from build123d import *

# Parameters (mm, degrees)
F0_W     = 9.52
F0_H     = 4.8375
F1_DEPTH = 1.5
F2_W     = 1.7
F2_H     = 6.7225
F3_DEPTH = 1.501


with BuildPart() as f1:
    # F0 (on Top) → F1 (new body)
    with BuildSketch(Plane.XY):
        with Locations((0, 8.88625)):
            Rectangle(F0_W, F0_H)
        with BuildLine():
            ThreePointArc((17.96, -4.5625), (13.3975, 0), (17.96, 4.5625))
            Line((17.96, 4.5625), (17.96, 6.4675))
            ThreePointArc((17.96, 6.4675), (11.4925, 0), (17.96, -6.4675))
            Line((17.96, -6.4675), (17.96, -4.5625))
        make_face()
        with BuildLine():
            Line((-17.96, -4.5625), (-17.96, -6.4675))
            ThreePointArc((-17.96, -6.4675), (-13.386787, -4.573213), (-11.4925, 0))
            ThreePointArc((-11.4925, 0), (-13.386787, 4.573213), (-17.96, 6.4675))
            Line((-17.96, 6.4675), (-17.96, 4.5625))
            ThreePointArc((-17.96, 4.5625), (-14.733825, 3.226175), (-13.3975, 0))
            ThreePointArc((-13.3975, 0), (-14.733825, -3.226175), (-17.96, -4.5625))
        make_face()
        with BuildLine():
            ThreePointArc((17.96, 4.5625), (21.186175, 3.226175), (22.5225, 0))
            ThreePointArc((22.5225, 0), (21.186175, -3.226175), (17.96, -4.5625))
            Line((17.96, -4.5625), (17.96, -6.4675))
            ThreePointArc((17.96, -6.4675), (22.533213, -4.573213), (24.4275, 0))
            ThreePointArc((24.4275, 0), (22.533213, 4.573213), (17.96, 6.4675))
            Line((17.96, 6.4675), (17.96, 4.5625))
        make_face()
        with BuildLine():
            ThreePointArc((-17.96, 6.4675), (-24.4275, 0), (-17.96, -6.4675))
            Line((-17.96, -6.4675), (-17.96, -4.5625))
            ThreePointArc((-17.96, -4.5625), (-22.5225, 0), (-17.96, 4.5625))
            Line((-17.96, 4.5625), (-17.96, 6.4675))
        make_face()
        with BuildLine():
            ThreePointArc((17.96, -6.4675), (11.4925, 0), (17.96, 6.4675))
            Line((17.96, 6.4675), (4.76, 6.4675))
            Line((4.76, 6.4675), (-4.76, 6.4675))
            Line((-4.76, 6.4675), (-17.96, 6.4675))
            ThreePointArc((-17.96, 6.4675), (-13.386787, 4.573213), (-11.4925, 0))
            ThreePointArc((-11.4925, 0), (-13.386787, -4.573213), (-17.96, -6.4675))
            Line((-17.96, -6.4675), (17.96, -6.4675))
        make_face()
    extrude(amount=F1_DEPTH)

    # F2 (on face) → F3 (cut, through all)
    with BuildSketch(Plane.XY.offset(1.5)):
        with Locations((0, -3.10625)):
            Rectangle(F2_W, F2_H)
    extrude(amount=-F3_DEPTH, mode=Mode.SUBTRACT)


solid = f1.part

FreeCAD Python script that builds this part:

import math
import FreeCAD as App
import Part
import Sketcher
Q = App.Units.Quantity


def add_polygon(sketch, points):
    """Adds a closed chain of lines whose ends are joined by coincident constraints."""
    first, n = sketch.GeometryCount, len(points)
    for a, b in zip(points, points[1:] + points[:1]):
        sketch.addGeometry(Part.LineSegment(App.Vector(*a, 0), App.Vector(*b, 0)), False)
    for i in range(n):
        sketch.addConstraint(Sketcher.Constraint("Coincident", first + i, 2, first + (i + 1) % n, 1))

doc = App.newDocument("Part")
body = doc.addObject("PartDesign::Body", "Body")

# Sketch on XY plane
sketch1 = doc.addObject("Sketcher::SketchObject", "Sketch")
body.addObject(sketch1)
sketch1.AttachmentSupport = (doc.XY_Plane, [""])
sketch1.MapMode = "FlatFace"
sketch1.addGeometry(Part.LineSegment(App.Vector(-4.76, 11.305, 0), App.Vector(-4.76, 6.4675, 0)), False)
sketch1.addGeometry(Part.LineSegment(App.Vector(-4.76, 6.4675, 0), App.Vector(-17.96, 6.4675, 0)), False)
sketch1.addGeometry(Part.ArcOfCircle(Part.Circle(App.Vector(-17.96, 0, 0), App.Vector(0, 0, 1), 6.4675), math.radians(90), math.radians(270)), False)
sketch1.addGeometry(Part.LineSegment(App.Vector(-17.96, -6.4675, 0), App.Vector(17.96, -6.4675, 0)), False)
sketch1.addGeometry(Part.ArcOfCircle(Part.Circle(App.Vector(17.96, 0, 0), App.Vector(0, 0, 1), 6.4675), math.radians(-89.999997), math.radians(-0.000003)), False)
sketch1.addGeometry(Part.ArcOfCircle(Part.Circle(App.Vector(17.96, 0, 0), App.Vector(0, 0, 1), 6.4675), math.radians(0.000003), math.radians(89.999997)), False)
sketch1.addGeometry(Part.LineSegment(App.Vector(17.96, 6.4675, 0), App.Vector(4.76, 6.4675, 0)), False)
sketch1.addGeometry(Part.LineSegment(App.Vector(4.76, 6.4675, 0), App.Vector(4.76, 11.305, 0)), False)
sketch1.addGeometry(Part.LineSegment(App.Vector(4.76, 11.305, 0), App.Vector(-4.76, 11.305, 0)), False)
sketch1.addGeometry(Part.ArcOfCircle(Part.Circle(App.Vector(17.96, 0, 0), App.Vector(0, 0, 1), 4.5625), math.radians(90), math.radians(270)), False)
sketch1.addGeometry(Part.ArcOfCircle(Part.Circle(App.Vector(17.960001, 0.000001, 0), App.Vector(0, 0, 1), 4.562499), math.radians(-0.000013), math.radians(90.000013)), False)
sketch1.addGeometry(Part.ArcOfCircle(Part.Circle(App.Vector(17.960001, -0.000001, 0), App.Vector(0, 0, 1), 4.562499), math.radians(-90.000013), math.radians(0.000013)), False)
sketch1.addGeometry(Part.ArcOfCircle(Part.Circle(App.Vector(-17.959999, -0.000001, 0), App.Vector(0, 0, 1), 4.562499), math.radians(-90.000013), math.radians(0.000013)), False)
sketch1.addGeometry(Part.ArcOfCircle(Part.Circle(App.Vector(-17.96, 0, 0), App.Vector(0, 0, 1), 4.5625), math.radians(90), math.radians(270)), False)
sketch1.addGeometry(Part.ArcOfCircle(Part.Circle(App.Vector(-17.959999, 0.000001, 0), App.Vector(0, 0, 1), 4.562499), math.radians(-0.000013), math.radians(90.000013)), False)
sketch1.addConstraint(Sketcher.Constraint("Coincident", 0, 2, 1, 1))
sketch1.addConstraint(Sketcher.Constraint("Tangent", 1, 2, 2, 1))
sketch1.addConstraint(Sketcher.Constraint("Tangent", 2, 2, 3, 1))
sketch1.addConstraint(Sketcher.Constraint("Tangent", 3, 2, 4, 1))
sketch1.addConstraint(Sketcher.Constraint("Tangent", 4, 2, 5, 1))
sketch1.addConstraint(Sketcher.Constraint("Tangent", 5, 2, 6, 1))
sketch1.addConstraint(Sketcher.Constraint("Coincident", 6, 2, 7, 1))
sketch1.addConstraint(Sketcher.Constraint("Coincident", 7, 2, 8, 1))
sketch1.addConstraint(Sketcher.Constraint("Coincident", 8, 2, 0, 1))
sketch1.addConstraint(Sketcher.Constraint("Tangent", 9, 1, 10, 2))
sketch1.addConstraint(Sketcher.Constraint("Tangent", 10, 1, 11, 2))
sketch1.addConstraint(Sketcher.Constraint("Tangent", 11, 1, 9, 2))
sketch1.addConstraint(Sketcher.Constraint("Tangent", 12, 1, 13, 2))
sketch1.addConstraint(Sketcher.Constraint("Tangent", 13, 1, 14, 2))
sketch1.addConstraint(Sketcher.Constraint("Tangent", 14, 1, 12, 2))
sketch1.addConstraint(Sketcher.Constraint("Vertical", 0))
sketch1.addConstraint(Sketcher.Constraint("Horizontal", 1))
sketch1.addConstraint(Sketcher.Constraint("Horizontal", 3))
sketch1.addConstraint(Sketcher.Constraint("Horizontal", 6))
sketch1.addConstraint(Sketcher.Constraint("Vertical", 7))
sketch1.addConstraint(Sketcher.Constraint("Horizontal", 8))
sketch1.addConstraint(Sketcher.Constraint("Coincident", 9, 3, 4, 3))
sketch1.addConstraint(Sketcher.Constraint("Coincident", 12, 3, 2, 3))
sketch1.addConstraint(Sketcher.Constraint("Equal", 2, 4))
sketch1.addConstraint(Sketcher.Constraint("Equal", 4, 5))
sketch1.addConstraint(Sketcher.Constraint("Equal", 11, 12))
sketch1.addConstraint(Sketcher.Constraint("Symmetric", 2, 3, 4, 3, -1, 1))
sketch1.addConstraint(Sketcher.Constraint("PointOnObject", 4, 2, -1))
sketch1.addConstraint(Sketcher.Constraint("PointOnObject", 10, 1, -1))
sketch1.addConstraint(Sketcher.Constraint("PointOnObject", 14, 1, -1))
sketch1.addConstraint(Sketcher.Constraint("Vertical", 5, 2, 9, 1))
sketch1.addConstraint(Sketcher.Constraint("Vertical", 9, 1, 11, 1))
sketch1.addConstraint(Sketcher.Constraint("Vertical", 2, 2, 12, 1))
sketch1.addConstraint(Sketcher.Constraint("Vertical", 12, 1, 13, 1))
sketch1.addConstraint(Sketcher.Constraint("Equal", 1, 6))
sketch1.addConstraint(Sketcher.Constraint("DistanceX", 1, 2, 1, 1, Q("13.2 mm")))
sketch1.addConstraint(Sketcher.Constraint("DistanceX", 3, 1, 3, 2, Q("35.92 mm")))
sketch1.addConstraint(Sketcher.Constraint("Radius", 2, Q("6.4675 mm")))
sketch1.addConstraint(Sketcher.Constraint("Radius", 9, Q("4.5625 mm")))
sketch1.addConstraint(Sketcher.Constraint("DistanceY", 0, 2, 0, 1, Q("4.8375 mm")))
pad1 = doc.addObject("PartDesign::Pad", "Pad")
body.addObject(pad1)
pad1.Profile = sketch1
pad1.Length = 1.5

# Sketch on XY plane
sketch2 = doc.addObject("Sketcher::SketchObject", "Sketch001")
body.addObject(sketch2)
sketch2.AttachmentSupport = (doc.XY_Plane, [""])
sketch2.MapMode = "FlatFace"
sketch2.AttachmentOffset = App.Placement(App.Vector(0, 0, 1.5), App.Rotation())
add_polygon(sketch2, [(-0.85, 0.255), (-0.85, -6.4675), (0.85, -6.4675), (0.85, 0.255)])  # lines 0-3
sketch2.addConstraint(Sketcher.Constraint("Vertical", 0))
sketch2.addConstraint(Sketcher.Constraint("Horizontal", 1))
sketch2.addConstraint(Sketcher.Constraint("Vertical", 2))
sketch2.addConstraint(Sketcher.Constraint("Horizontal", 3))
sketch2.addConstraint(Sketcher.Constraint("DistanceX", 1, 1, 1, 2, Q("1.7 mm")))
sketch2.addConstraint(Sketcher.Constraint("DistanceX", 0, 2, -1, 1, Q("0.85 mm")))
sketch2.addConstraint(Sketcher.Constraint("DistanceY", 0, 2, 0, 1, Q("6.7225 mm")))
sketch2.addConstraint(Sketcher.Constraint("DistanceY", -1, 1, 2, 2, Q("0.255 mm")))
pocket1 = doc.addObject("PartDesign::Pocket", "Pocket")
body.addObject(pocket1)
pocket1.Profile = sketch2
pocket1.Type = "ThroughAll"

doc.recompute()
